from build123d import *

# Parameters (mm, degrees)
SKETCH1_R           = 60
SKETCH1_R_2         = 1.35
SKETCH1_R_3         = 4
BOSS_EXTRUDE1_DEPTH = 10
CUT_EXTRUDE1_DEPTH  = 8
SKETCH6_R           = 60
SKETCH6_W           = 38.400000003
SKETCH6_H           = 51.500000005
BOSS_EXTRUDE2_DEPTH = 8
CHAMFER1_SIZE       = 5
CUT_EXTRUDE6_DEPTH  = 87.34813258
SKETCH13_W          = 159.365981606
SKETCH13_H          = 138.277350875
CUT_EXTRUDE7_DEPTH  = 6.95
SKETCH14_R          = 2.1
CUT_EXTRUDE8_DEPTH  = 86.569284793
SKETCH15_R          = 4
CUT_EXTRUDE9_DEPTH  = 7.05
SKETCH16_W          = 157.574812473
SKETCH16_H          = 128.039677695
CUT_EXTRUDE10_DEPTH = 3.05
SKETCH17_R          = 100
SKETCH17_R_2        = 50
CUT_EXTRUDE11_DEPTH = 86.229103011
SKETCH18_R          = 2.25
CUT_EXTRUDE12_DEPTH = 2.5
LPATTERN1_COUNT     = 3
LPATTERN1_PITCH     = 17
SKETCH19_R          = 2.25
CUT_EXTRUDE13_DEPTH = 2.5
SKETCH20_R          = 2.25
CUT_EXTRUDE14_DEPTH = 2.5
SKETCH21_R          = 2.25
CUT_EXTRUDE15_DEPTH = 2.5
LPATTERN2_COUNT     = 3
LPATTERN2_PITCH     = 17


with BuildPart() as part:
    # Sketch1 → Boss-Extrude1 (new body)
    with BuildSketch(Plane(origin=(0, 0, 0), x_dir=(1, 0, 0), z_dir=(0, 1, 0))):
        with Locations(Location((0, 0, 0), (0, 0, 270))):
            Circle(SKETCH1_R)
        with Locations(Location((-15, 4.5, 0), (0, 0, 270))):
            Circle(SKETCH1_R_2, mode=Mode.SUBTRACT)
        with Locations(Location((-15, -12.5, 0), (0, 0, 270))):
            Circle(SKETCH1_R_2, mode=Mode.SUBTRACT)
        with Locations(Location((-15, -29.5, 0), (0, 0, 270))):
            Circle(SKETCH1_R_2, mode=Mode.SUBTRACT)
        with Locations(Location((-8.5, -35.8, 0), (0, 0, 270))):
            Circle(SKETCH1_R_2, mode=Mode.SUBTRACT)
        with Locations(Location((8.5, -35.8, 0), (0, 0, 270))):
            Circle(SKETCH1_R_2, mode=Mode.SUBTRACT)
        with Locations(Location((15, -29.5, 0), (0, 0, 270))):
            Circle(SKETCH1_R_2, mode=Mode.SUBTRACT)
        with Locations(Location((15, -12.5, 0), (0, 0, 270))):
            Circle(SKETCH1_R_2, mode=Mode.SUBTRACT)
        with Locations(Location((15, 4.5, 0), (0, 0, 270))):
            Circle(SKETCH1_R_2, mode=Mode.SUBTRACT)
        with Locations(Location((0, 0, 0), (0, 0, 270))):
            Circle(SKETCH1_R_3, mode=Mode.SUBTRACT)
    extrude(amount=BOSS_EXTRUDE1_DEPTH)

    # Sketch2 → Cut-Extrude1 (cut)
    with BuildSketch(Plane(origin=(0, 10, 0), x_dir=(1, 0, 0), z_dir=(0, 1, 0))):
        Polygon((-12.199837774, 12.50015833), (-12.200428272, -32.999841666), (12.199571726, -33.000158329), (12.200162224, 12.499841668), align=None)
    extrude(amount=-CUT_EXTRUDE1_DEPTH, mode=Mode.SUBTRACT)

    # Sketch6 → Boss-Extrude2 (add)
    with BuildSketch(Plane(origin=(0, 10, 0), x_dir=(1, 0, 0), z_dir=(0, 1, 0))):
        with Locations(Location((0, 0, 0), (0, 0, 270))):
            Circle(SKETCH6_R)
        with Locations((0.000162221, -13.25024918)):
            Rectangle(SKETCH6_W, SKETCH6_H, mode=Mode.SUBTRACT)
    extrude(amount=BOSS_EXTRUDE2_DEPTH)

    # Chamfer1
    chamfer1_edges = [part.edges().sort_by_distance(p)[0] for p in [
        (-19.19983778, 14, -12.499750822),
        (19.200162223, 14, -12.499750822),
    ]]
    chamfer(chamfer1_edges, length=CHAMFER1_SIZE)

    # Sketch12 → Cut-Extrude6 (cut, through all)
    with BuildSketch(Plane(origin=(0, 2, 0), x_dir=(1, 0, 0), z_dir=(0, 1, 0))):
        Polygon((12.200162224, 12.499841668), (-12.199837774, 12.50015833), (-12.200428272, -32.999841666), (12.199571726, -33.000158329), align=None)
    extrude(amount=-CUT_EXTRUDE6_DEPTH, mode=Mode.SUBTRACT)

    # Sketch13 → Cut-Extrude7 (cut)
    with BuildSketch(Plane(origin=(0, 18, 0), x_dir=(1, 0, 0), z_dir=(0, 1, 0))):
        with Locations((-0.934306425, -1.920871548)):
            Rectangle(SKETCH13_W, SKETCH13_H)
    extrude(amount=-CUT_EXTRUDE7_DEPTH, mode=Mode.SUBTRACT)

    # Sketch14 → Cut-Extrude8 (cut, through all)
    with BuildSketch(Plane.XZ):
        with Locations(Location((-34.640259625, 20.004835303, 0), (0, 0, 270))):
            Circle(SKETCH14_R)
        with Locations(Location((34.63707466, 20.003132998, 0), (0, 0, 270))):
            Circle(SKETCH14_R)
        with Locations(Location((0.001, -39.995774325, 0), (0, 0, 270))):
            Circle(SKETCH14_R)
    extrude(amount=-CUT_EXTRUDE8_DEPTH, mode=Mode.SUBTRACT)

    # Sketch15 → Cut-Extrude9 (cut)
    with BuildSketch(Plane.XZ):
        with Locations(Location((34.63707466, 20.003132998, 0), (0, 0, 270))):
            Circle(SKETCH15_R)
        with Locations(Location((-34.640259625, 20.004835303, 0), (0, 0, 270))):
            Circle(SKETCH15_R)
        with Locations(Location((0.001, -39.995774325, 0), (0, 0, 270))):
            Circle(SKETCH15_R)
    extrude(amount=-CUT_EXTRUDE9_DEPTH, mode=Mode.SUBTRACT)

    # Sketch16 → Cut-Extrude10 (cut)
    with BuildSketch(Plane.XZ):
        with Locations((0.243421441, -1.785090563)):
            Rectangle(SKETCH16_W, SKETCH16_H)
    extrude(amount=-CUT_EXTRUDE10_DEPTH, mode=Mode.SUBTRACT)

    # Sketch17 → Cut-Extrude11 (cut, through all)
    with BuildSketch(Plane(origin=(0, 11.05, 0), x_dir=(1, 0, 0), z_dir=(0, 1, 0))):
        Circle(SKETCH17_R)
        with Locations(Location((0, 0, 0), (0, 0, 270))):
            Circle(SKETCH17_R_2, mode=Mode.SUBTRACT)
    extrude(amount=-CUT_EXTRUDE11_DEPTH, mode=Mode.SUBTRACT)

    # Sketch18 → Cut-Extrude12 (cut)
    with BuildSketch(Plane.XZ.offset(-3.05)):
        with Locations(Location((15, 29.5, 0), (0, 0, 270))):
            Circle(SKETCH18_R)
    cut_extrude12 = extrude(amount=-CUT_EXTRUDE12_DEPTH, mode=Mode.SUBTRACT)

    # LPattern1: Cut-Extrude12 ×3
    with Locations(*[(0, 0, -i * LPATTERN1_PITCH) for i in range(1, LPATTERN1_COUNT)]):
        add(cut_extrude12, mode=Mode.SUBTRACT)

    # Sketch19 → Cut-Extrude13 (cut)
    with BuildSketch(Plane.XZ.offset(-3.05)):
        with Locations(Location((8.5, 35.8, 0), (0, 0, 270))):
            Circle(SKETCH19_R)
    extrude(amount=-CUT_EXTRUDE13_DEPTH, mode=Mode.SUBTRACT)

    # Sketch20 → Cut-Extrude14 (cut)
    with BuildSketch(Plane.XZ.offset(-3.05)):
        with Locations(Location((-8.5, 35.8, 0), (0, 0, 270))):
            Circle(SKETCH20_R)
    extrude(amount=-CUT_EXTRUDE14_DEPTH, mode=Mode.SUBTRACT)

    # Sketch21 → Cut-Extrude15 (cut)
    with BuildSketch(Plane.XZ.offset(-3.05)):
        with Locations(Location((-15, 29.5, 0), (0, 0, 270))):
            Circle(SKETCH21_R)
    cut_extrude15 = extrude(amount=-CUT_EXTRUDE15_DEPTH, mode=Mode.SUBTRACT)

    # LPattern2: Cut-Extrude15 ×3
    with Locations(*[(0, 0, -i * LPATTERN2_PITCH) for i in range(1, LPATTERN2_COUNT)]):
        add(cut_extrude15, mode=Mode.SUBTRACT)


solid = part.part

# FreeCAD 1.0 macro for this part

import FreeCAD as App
import Part
import Sketcher
from FreeCAD import Vector


def edges_at(feature, points):
    """Names of the edges that pass closest to the given points."""
    edges = feature.Shape.Edges
    near = lambda p: min(range(len(edges)), key=lambda i: edges[i].distToShape(Part.Vertex(*p))[0])
    return sorted({f"Edge{near(p) + 1}" for p in points})


def add_polygon(sketch, points):
    """Adds a closed chain of lines whose ends are joined by coincident constraints."""
    first, n = sketch.GeometryCount, len(points)
    for a, b in zip(points, points[1:] + points[:1]):
        sketch.addGeometry(Part.LineSegment(App.Vector(*a, 0), App.Vector(*b, 0)), False)
    for i in range(n):
        sketch.addConstraint(Sketcher.Constraint("Coincident", first + i, 2, first + (i + 1) % n, 1))

doc = App.newDocument("Part")
params = doc.addObject("Spreadsheet::Sheet", "Params")
for row, (alias, value) in enumerate([
    ("sketch1_diameter", "120 mm"),
    ("sketch1_diameter2", "8 mm"),
    ("sketch1_diameter3", "2.7 mm"),
    ("pad1_length", "10 mm"),
    ("sketch2_length", "45.5 mm"),
    ("sketch2_length2", "24.4 mm"),
    ("pocket1_length", "8 mm"),
    ("sketch3_diameter", "120 mm"),
    ("sketch3_width", "38.4 mm"),
    ("sketch3_height", "51.5 mm"),
    ("pad2_length", "8 mm"),
    ("chamfer_size", "5 mm"),
    ("sketch4_length", "24.4 mm"),
    ("sketch4_length2", "45.5 mm"),
    ("pocket3_length", "6.95 mm"),
    ("sketch6_diameter", "4.2 mm"),
    ("sketch7_diameter", "8 mm"),
    ("pocket5_length", "7.05 mm"),
    ("pocket6_length", "3.05 mm"),
    ("sketch9_diameter", "200 mm"),
    ("sketch9_diameter2", "100 mm"),
    ("sketch10_diameter", "4.5 mm"),
    ("pocket8_length", "2.5 mm"),
    ("linearpattern_pitch", "17 mm"),
    ("sketch11_diameter", "4.5 mm"),
    ("pocket9_length", "2.5 mm"),
    ("sketch12_diameter", "4.5 mm"),
    ("pocket10_length", "2.5 mm"),
    ("sketch13_diameter", "4.5 mm"),
    ("pocket11_length", "2.5 mm"),
    ("linearpattern2_pitch", "17 mm"),
], start=1):
    params.set(f"A{row}", alias)
    params.set(f"B{row}", "=" + value)
    params.setAlias(f"B{row}", alias)

body = doc.addObject("PartDesign::Body", "Body")

# Sketch on XZ plane
sketch1 = body.newObject("Sketcher::SketchObject", "Sketch")
sketch1.AttachmentSupport = (doc.getObject("XZ_Plane"), [""])
sketch1.MapMode = "FlatFace"
sketch1.addGeometry([
    Part.Circle(Vector(0, 0, 0), Vector(0, 0, 1), 60),  # 0
    Part.Circle(Vector(-15, -4.5, 0), Vector(0, 0, 1), 1.4),  # 1
    Part.Circle(Vector(-15, 12.5, 0), Vector(0, 0, 1), 1.4),  # 2
    Part.Circle(Vector(0, 0, 0), Vector(0, 0, 1), 4),  # 3
    Part.Circle(Vector(-15, 29.5, 0), Vector(0, 0, 1), 1.4),  # 4
    Part.Circle(Vector(-8.5, 35.8, 0), Vector(0, 0, 1), 1.4),  # 5
    Part.Circle(Vector(15, -4.5, 0), Vector(0, 0, 1), 1.4),  # 6
    Part.Circle(Vector(15, 12.5, 0), Vector(0, 0, 1), 1.4),  # 7
    Part.Circle(Vector(8.5, 35.8, 0), Vector(0, 0, 1), 1.4),  # 8
    Part.Circle(Vector(15, 29.5, 0), Vector(0, 0, 1), 1.4),  # 9
], False)
sketch1.addConstraint([
    Sketcher.Constraint("Coincident", 0, 3, -1, 1),
    Sketcher.Constraint("Coincident", 3, 3, -1, 1),
    Sketcher.Constraint("Equal", 1, 2),
    Sketcher.Constraint("Equal", 2, 4),
    Sketcher.Constraint("Equal", 4, 5),
    Sketcher.Constraint("Equal", 5, 6),
    Sketcher.Constraint("Equal", 6, 7),
    Sketcher.Constraint("Equal", 7, 8),
    Sketcher.Constraint("Equal", 8, 9),
    Sketcher.Constraint("Symmetric", 1, 3, 6, 3, -2),
    Sketcher.Constraint("Symmetric", 2, 3, 7, 3, -2),
    Sketcher.Constraint("Symmetric", 5, 3, 8, 3, -2),
    Sketcher.Constraint("Symmetric", 4, 3, 9, 3, -2),
    Sketcher.Constraint("Vertical", 1, 3, 2, 3),
    Sketcher.Constraint("Vertical", 2, 3, 4, 3),
    Sketcher.Constraint("Diameter", 0, 120.0),
    Sketcher.Constraint("Diameter", 3, 8.0),
    Sketcher.Constraint("Diameter", 1, 2.7),
    Sketcher.Constraint("DistanceX", 1, 3, -1, 1, 15.0),
    Sketcher.Constraint("DistanceY", 1, 3, 2, 3, 17.0),
    Sketcher.Constraint("DistanceY", 2, 3, 4, 3, 17.0),
    Sketcher.Constraint("DistanceX", 5, 3, 8, 3, 17.0),
    Sketcher.Constraint("DistanceY", 1, 3, -1, 1, 4.5),
    Sketcher.Constraint("DistanceY", -1, 1, 5, 3, 35.8),
])
sketch1.setExpression("Constraints[15]", "Params.sketch1_diameter")
sketch1.setExpression("Constraints[16]", "Params.sketch1_diameter2")
sketch1.setExpression("Constraints[17]", "Params.sketch1_diameter3")
pad1 = body.newObject("PartDesign::Pad", "Pad")
pad1.Profile = sketch1
pad1.setExpression("Length", "Params.pad1_length")
pad1.Reversed = True

# Sketch on XZ plane
sketch2 = body.newObject("Sketcher::SketchObject", "Sketch001")
sketch2.AttachmentSupport = (doc.getObject("XZ_Plane"), [""])
sketch2.MapMode = "FlatFace"
sketch2.AttachmentOffset = App.Placement(Vector(0, 0, -10), App.Rotation())
add_polygon(sketch2, [(-12, -13), (-12, 33), (12, 33), (12, -12)])  # lines 0-3
sketch2.addConstraint([
    Sketcher.Constraint("Perpendicular", 0, 1),
    Sketcher.Constraint("Perpendicular", 1, 2),
    Sketcher.Constraint("Perpendicular", 2, 3),
    Sketcher.Constraint("Distance", 0, 45.5),
    Sketcher.Constraint("Distance", 1, 24.4),
    Sketcher.Constraint("DistanceX", 0, 2, -1, 1, 12.200428),
    Sketcher.Constraint("DistanceY", -1, 1, 0, 2, 32.999842),
    Sketcher.Constraint("DistanceY", -1, 1, 1, 2, 33.000158),
])
sketch2.setExpression("Constraints[7]", "Params.sketch2_length")
sketch2.setExpression("Constraints[8]", "Params.sketch2_length2")
pocket1 = body.newObject("PartDesign::Pocket", "Pocket")
pocket1.Profile = sketch2
pocket1.setExpression("Length", "Params.pocket1_length")
pocket1.Reversed = True

# Sketch on XZ plane
sketch3 = body.newObject("Sketcher::SketchObject", "Sketch002")
sketch3.AttachmentSupport = (doc.getObject("XZ_Plane"), [""])
sketch3.MapMode = "FlatFace"
sketch3.AttachmentOffset = App.Placement(Vector(0, 0, -10), App.Rotation())
sketch3.addGeometry(Part.Circle(Vector(0, 0, 0), Vector(0, 0, 1), 60), False)  # 0
add_polygon(sketch3, [(19, 39), (-19, 39), (-19, -12), (19, -12)])  # lines 1-4
sketch3.addConstraint([
    Sketcher.Constraint("Horizontal", 1),
    Sketcher.Constraint("Vertical", 2),
    Sketcher.Constraint("Horizontal", 3),
    Sketcher.Constraint("Vertical", 4),
    Sketcher.Constraint("Coincident", 0, 3, -1, 1),
    Sketcher.Constraint("Diameter", 0, 120.0),
    Sketcher.Constraint("DistanceX", 1, 2, 1, 1, 38.4),
    Sketcher.Constraint("DistanceY", 2, 2, 2, 1, 51.5),
    Sketcher.Constraint("DistanceY", -1, 1, 1, 2, 39.000249),
    Sketcher.Constraint("DistanceX", 1, 2, -1, 1, 19.199838),
])
sketch3.setExpression("Constraints[9]", "Params.sketch3_diameter")
sketch3.setExpression("Constraints[10]", "Params.sketch3_width")
sketch3.setExpression("Constraints[11]", "Params.sketch3_height")
pad2 = body.newObject("PartDesign::Pad", "Pad001")
pad2.Profile = sketch3
pad2.setExpression("Length", "Params.pad2_length")
pad2.Reversed = True
doc.recompute()

chamfer = body.newObject("PartDesign::Chamfer", "Chamfer")
chamfer.Base = (pad2, edges_at(pad2, [(-19.2, 14, -12.5), (19.2, 14, -12.5)]))
chamfer.setExpression("Size", "Params.chamfer_size")

# Sketch on XZ plane
sketch4 = body.newObject("Sketcher::SketchObject", "Sketch003")
sketch4.AttachmentSupport = (doc.getObject("XZ_Plane"), [""])
sketch4.MapMode = "FlatFace"
sketch4.AttachmentOffset = App.Placement(Vector(0, 0, -2), App.Rotation())
add_polygon(sketch4, [(12, -12), (-12, -13), (-12, 33), (12, 33)])  # lines 0-3
sketch4.addConstraint([
    Sketcher.Constraint("Perpendicular", 0, 1),
    Sketcher.Constraint("Perpendicular", 1, 2),
    Sketcher.Constraint("Perpendicular", 2, 3),
    Sketcher.Constraint("Distance", 0, 24.4),
    Sketcher.Constraint("Distance", 1, 45.5),
    Sketcher.Constraint("DistanceY", 0, 2, -1, 1, 12.500158),
    Sketcher.Constraint("DistanceX", 1, 2, -1, 1, 12.200428),
    Sketcher.Constraint("DistanceY", -1, 1, 2, 2, 33.000158),
])
sketch4.setExpression("Constraints[7]", "Params.sketch4_length")
sketch4.setExpression("Constraints[8]", "Params.sketch4_length2")
pocket2 = body.newObject("PartDesign::Pocket", "Pocket001")
pocket2.Profile = sketch4
pocket2.Type = "ThroughAll"
pocket2.Reversed = True

# Sketch on XZ plane
sketch5 = body.newObject("Sketcher::SketchObject", "Sketch004")
sketch5.AttachmentSupport = (doc.getObject("XZ_Plane"), [""])
sketch5.MapMode = "FlatFace"
sketch5.AttachmentOffset = App.Placement(Vector(0, 0, -18), App.Rotation())
add_polygon(sketch5, [(-81, -67), (-81, 71), (79, 71), (79, -67)])  # lines 0-3
sketch5.addConstraint([
    Sketcher.Constraint("Vertical", 0),
    Sketcher.Constraint("Horizontal", 1),
    Sketcher.Constraint("Vertical", 2),
    Sketcher.Constraint("Horizontal", 3),
    Sketcher.Constraint("DistanceX", 1, 1, 1, 2, 159.365982),
    Sketcher.Constraint("DistanceY", 0, 1, 0, 2, 138.277351),
    Sketcher.Constraint("DistanceX", 0, 2, -1, 1, 80.617297),
    Sketcher.Constraint("DistanceY", -1, 1, 0, 2, 71.059547),
])
pocket3 = body.newObject("PartDesign::Pocket", "Pocket002")
pocket3.Profile = sketch5
pocket3.setExpression("Length", "Params.pocket3_length")
pocket3.Reversed = True

# Sketch on XZ plane
sketch6 = body.newObject("Sketcher::SketchObject", "Sketch005")
sketch6.AttachmentSupport = (doc.getObject("XZ_Plane"), [""])
sketch6.MapMode = "FlatFace"
sketch6.addGeometry([
    Part.Circle(Vector(-34.6, 20, 0), Vector(0, 0, 1), 2.1),
    Part.Circle(Vector(34.6, 20, 0), Vector(0, 0, 1), 2.1),
    Part.Circle(Vector(0, -40, 0), Vector(0, 0, 1), 2.1),
], False)
sketch6.addConstraint([
    Sketcher.Constraint("Equal", 0, 1),
    Sketcher.Constraint("Equal", 1, 2),
    Sketcher.Constraint("Diameter", 0, 4.2),
    Sketcher.Constraint("DistanceX", -1, 1, 2, 3, 0.001),
    Sketcher.Constraint("DistanceX", 0, 3, -1, 1, 34.64026),
    Sketcher.Constraint("DistanceY", 2, 3, 0, 3, 60.00061),
    Sketcher.Constraint("DistanceY", -1, 1, 0, 3, 20.004835),
    Sketcher.Constraint("DistanceX", -1, 1, 1, 3, 34.637075),
    Sketcher.Constraint("DistanceY", -1, 1, 1, 3, 20.003133),
])
sketch6.setExpression("Constraints[2]", "Params.sketch6_diameter")
pocket4 = body.newObject("PartDesign::Pocket", "Pocket003")
pocket4.Profile = sketch6
pocket4.Type = "ThroughAll"

# Sketch on XZ plane
sketch7 = body.newObject("Sketcher::SketchObject", "Sketch006")
sketch7.AttachmentSupport = (doc.getObject("XZ_Plane"), [""])
sketch7.MapMode = "FlatFace"
sketch7.addGeometry([
    Part.Circle(Vector(34.6, 20, 0), Vector(0, 0, 1), 4),
    Part.Circle(Vector(-34.6, 20, 0), Vector(0, 0, 1), 4),
    Part.Circle(Vector(0, -40, 0), Vector(0, 0, 1), 4),
], False)
sketch7.addConstraint([
    Sketcher.Constraint("Equal", 0, 1),
    Sketcher.Constraint("Equal", 1, 2),
    Sketcher.Constraint("Diameter", 0, 8.0),
    Sketcher.Constraint("DistanceX", -1, 1, 2, 3, 0.001),
    Sketcher.Constraint("DistanceX", 1, 3, -1, 1, 34.64026),
    Sketcher.Constraint("DistanceY", 2, 3, 1, 3, 60.00061),
    Sketcher.Constraint("DistanceX", -1, 1, 0, 3, 34.637075),
    Sketcher.Constraint("DistanceY", -1, 1, 0, 3, 20.003133),
    Sketcher.Constraint("DistanceY", -1, 1, 1, 3, 20.004835),
])
sketch7.setExpression("Constraints[2]", "Params.sketch7_diameter")
pocket5 = body.newObject("PartDesign::Pocket", "Pocket004")
pocket5.Profile = sketch7
pocket5.setExpression("Length", "Params.pocket5_length")

# Sketch on XZ plane
sketch8 = body.newObject("Sketcher::SketchObject", "Sketch007")
sketch8.AttachmentSupport = (doc.getObject("XZ_Plane"), [""])
sketch8.MapMode = "FlatFace"
add_polygon(sketch8, [(-79, 62), (-79, -66), (79, -66), (79, 62)])  # lines 0-3
sketch8.addConstraint([
    Sketcher.Constraint("Vertical", 0),
    Sketcher.Constraint("Horizontal", 1),
    Sketcher.Constraint("Vertical", 2),
    Sketcher.Constraint("Horizontal", 3),
    Sketcher.Constraint("DistanceX", 1, 1, 1, 2, 157.574812),
    Sketcher.Constraint("DistanceY", 0, 2, 0, 1, 128.039678),
    Sketcher.Constraint("DistanceY", 0, 2, -1, 1, 65.804929),
    Sketcher.Constraint("DistanceX", 0, 2, -1, 1, 78.543985),
])
pocket6 = body.newObject("PartDesign::Pocket", "Pocket005")
pocket6.Profile = sketch8
pocket6.setExpression("Length", "Params.pocket6_length")

# Sketch on XZ plane
sketch9 = body.newObject("Sketcher::SketchObject", "Sketch008")
sketch9.AttachmentSupport = (doc.getObject("XZ_Plane"), [""])
sketch9.MapMode = "FlatFace"
sketch9.AttachmentOffset = App.Placement(Vector(0, 0, -11.05), App.Rotation())
sketch9.addGeometry([
    Part.Circle(Vector(0, 0, 0), Vector(0, 0, 1), 100),
    Part.Circle(Vector(0, 0, 0), Vector(0, 0, 1), 50),
], False)
sketch9.addConstraint([
    Sketcher.Constraint("Coincident", 0, 3, -1, 1),
    Sketcher.Constraint("Coincident", 1, 3, -1, 1),
    Sketcher.Constraint("Diameter", 0, 200.0),
    Sketcher.Constraint("Diameter", 1, 100.0),
])
sketch9.setExpression("Constraints[2]", "Params.sketch9_diameter")
sketch9.setExpression("Constraints[3]", "Params.sketch9_diameter2")
pocket7 = body.newObject("PartDesign::Pocket", "Pocket006")
pocket7.Profile = sketch9
pocket7.Type = "ThroughAll"
pocket7.Reversed = True

# Sketch on XZ plane
sketch10 = body.newObject("Sketcher::SketchObject", "Sketch009")
sketch10.AttachmentSupport = (doc.getObject("XZ_Plane"), [""])
sketch10.MapMode = "FlatFace"
sketch10.AttachmentOffset = App.Placement(Vector(0, 0, -3.05), App.Rotation())
sketch10.addGeometry(Part.Circle(Vector(15, 29.5, 0), Vector(0, 0, 1), 2.2), False)
sketch10.addConstraint([
    Sketcher.Constraint("Diameter", 0, 4.5),
    Sketcher.Constraint("DistanceX", -1, 1, 0, 3, 15.0),
    Sketcher.Constraint("DistanceY", -1, 1, 0, 3, 29.5),
])
sketch10.setExpression("Constraints[0]", "Params.sketch10_diameter")
pocket8 = body.newObject("PartDesign::Pocket", "Pocket007")
pocket8.Profile = sketch10
pocket8.setExpression("Length", "Params.pocket8_length")
doc.recompute()

linearpattern = body.newObject("PartDesign::LinearPattern", "LinearPattern")
linearpattern.Originals = [pocket8]
linearpattern.Direction = (doc.getObject("Z_Axis"), [""])
linearpattern.Mode = "offset"
linearpattern.setExpression("Offset", "Params.linearpattern_pitch")
linearpattern.Occurrences = 3
linearpattern.Reversed = True
body.Tip = linearpattern

# Sketch on XZ plane
sketch11 = body.newObject("Sketcher::SketchObject", "Sketch010")
sketch11.AttachmentSupport = (doc.getObject("XZ_Plane"), [""])
sketch11.MapMode = "FlatFace"
sketch11.AttachmentOffset = App.Placement(Vector(0, 0, -3.05), App.Rotation())
sketch11.addGeometry(Part.Circle(Vector(8.5, 35.8, 0), Vector(0, 0, 1), 2.2), False)
sketch11.addConstraint([
    Sketcher.Constraint("Diameter", 0, 4.5),
    Sketcher.Constraint("DistanceX", -1, 1, 0, 3, 8.5),
    Sketcher.Constraint("DistanceY", -1, 1, 0, 3, 35.8),
])
sketch11.setExpression("Constraints[0]", "Params.sketch11_diameter")
pocket9 = body.newObject("PartDesign::Pocket", "Pocket008")
pocket9.Profile = sketch11
pocket9.setExpression("Length", "Params.pocket9_length")

# Sketch on XZ plane
sketch12 = body.newObject("Sketcher::SketchObject", "Sketch011")
sketch12.AttachmentSupport = (doc.getObject("XZ_Plane"), [""])
sketch12.MapMode = "FlatFace"
sketch12.AttachmentOffset = App.Placement(Vector(0, 0, -3.05), App.Rotation())
sketch12.addGeometry(Part.Circle(Vector(-8.5, 35.8, 0), Vector(0, 0, 1), 2.2), False)
sketch12.addConstraint([
    Sketcher.Constraint("Diameter", 0, 4.5),
    Sketcher.Constraint("DistanceX", 0, 3, -1, 1, 8.5),
    Sketcher.Constraint("DistanceY", -1, 1, 0, 3, 35.8),
])
sketch12.setExpression("Constraints[0]", "Params.sketch12_diameter")
pocket10 = body.newObject("PartDesign::Pocket", "Pocket009")
pocket10.Profile = sketch12
pocket10.setExpression("Length", "Params.pocket10_length")

# Sketch on XZ plane
sketch13 = body.newObject("Sketcher::SketchObject", "Sketch012")
sketch13.AttachmentSupport = (doc.getObject("XZ_Plane"), [""])
sketch13.MapMode = "FlatFace"
sketch13.AttachmentOffset = App.Placement(Vector(0, 0, -3.05), App.Rotation())
sketch13.addGeometry(Part.Circle(Vector(-15, 29.5, 0), Vector(0, 0, 1), 2.2), False)
sketch13.addConstraint([
    Sketcher.Constraint("Diameter", 0, 4.5),
    Sketcher.Constraint("DistanceX", 0, 3, -1, 1, 15.0),
    Sketcher.Constraint("DistanceY", -1, 1, 0, 3, 29.5),
])
sketch13.setExpression("Constraints[0]", "Params.sketch13_diameter")
pocket11 = body.newObject("PartDesign::Pocket", "Pocket010")
pocket11.Profile = sketch13
pocket11.setExpression("Length", "Params.pocket11_length")
doc.recompute()

linearpattern2 = body.newObject("PartDesign::LinearPattern", "LinearPattern001")
linearpattern2.Originals = [pocket11]
linearpattern2.Direction = (doc.getObject("Z_Axis"), [""])
linearpattern2.Mode = "offset"
linearpattern2.setExpression("Offset", "Params.linearpattern2_pitch")
linearpattern2.Occurrences = 3
linearpattern2.Reversed = True
body.Tip = linearpattern2

doc.recompute()
